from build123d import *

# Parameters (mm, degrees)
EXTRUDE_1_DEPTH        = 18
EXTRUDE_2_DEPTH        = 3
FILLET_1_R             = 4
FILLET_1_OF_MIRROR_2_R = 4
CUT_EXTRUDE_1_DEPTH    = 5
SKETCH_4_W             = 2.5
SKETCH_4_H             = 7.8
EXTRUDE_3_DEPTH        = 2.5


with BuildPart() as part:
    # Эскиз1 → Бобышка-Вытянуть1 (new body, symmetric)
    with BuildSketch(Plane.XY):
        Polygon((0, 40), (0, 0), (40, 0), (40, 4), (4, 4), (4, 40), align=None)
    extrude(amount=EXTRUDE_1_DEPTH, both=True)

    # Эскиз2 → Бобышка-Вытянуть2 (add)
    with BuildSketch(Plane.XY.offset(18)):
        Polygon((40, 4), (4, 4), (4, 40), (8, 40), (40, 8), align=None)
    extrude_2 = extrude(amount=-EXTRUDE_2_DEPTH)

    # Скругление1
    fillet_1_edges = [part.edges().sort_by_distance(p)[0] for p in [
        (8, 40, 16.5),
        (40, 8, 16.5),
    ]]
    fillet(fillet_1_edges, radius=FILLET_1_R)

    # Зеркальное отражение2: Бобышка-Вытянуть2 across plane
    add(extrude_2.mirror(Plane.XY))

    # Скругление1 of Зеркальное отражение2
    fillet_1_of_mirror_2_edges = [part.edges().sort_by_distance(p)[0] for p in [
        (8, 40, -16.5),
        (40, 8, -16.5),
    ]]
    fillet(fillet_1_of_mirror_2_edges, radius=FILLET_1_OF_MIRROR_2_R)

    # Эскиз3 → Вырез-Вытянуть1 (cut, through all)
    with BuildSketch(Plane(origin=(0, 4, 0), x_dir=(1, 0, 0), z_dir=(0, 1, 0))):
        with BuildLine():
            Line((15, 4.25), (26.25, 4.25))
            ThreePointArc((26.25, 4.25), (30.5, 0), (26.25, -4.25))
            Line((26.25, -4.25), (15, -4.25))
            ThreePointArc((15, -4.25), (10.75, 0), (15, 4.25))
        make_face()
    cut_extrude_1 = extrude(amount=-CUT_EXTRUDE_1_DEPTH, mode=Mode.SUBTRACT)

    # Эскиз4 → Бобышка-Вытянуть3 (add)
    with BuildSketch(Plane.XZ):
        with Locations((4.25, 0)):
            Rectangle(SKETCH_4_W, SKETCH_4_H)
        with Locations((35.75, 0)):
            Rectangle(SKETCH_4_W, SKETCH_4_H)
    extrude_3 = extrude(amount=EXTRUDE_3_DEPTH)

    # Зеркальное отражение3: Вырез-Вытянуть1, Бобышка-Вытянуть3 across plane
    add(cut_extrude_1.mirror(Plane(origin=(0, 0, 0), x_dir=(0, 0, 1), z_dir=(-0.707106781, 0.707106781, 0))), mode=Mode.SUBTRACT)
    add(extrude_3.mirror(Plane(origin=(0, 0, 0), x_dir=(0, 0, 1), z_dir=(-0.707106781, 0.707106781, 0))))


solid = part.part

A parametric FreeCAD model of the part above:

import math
import FreeCAD as App
import Part
import Sketcher
from FreeCAD import Vector


def edges_at(feature, points):
    """Names of the edges that pass closest to the given points."""
    edges = feature.Shape.Edges
    near = lambda p: min(range(len(edges)), key=lambda i: edges[i].distToShape(Part.Vertex(*p))[0])
    return sorted({f"Edge{near(p) + 1}" for p in points})


def add_polygon(sketch, points):
    """Adds a closed chain of lines whose ends are joined by coincident constraints."""
    first, n = sketch.GeometryCount, len(points)
    for a, b in zip(points, points[1:] + points[:1]):
        sketch.addGeometry(Part.LineSegment(App.Vector(*a, 0), App.Vector(*b, 0)), False)
    for i in range(n):
        sketch.addConstraint(Sketcher.Constraint("Coincident", first + i, 2, first + (i + 1) % n, 1))

doc = App.newDocument("Part")
body = doc.addObject("PartDesign::Body", "Body")

# Sketch on XY plane
sketch1 = body.newObject("Sketcher::SketchObject", "Sketch")
sketch1.AttachmentSupport = (doc.getObject("XY_Plane"), [""])
sketch1.MapMode = "FlatFace"
add_polygon(sketch1, [(0, 40), (0, 0), (40, 0), (40, 4), (4, 4), (4, 40)])  # lines 0-5
sketch1.addConstraint(Sketcher.Constraint("Vertical", 0))
sketch1.addConstraint(Sketcher.Constraint("Horizontal", 1))
sketch1.addConstraint(Sketcher.Constraint("Vertical", 2))
sketch1.addConstraint(Sketcher.Constraint("Horizontal", 3))
sketch1.addConstraint(Sketcher.Constraint("Vertical", 4))
sketch1.addConstraint(Sketcher.Constraint("Horizontal", 5))
sketch1.addConstraint(Sketcher.Constraint("Coincident", 0, 2, -1, 1))
sketch1.addConstraint(Sketcher.Constraint("Equal", 1, 0))
sketch1.addConstraint(Sketcher.Constraint("Equal", 5, 2))
sketch1.addConstraint(Sketcher.Constraint("DistanceX", 1, 1, 1, 2, 40.0))
sketch1.addConstraint(Sketcher.Constraint("DistanceX", 3, 2, 3, 1, 36.0))
pad1 = body.newObject("PartDesign::Pad", "Pad")
pad1.Profile = sketch1
pad1.Length = 36
pad1.Midplane = True

# Sketch on XY plane
sketch2 = body.newObject("Sketcher::SketchObject", "Sketch001")
sketch2.AttachmentSupport = (doc.getObject("XY_Plane"), [""])
sketch2.MapMode = "FlatFace"
sketch2.AttachmentOffset = App.Placement(Vector(0, 0, 18), App.Rotation())
add_polygon(sketch2, [(4, 4), (40, 4), (40, 8), (8, 40), (4, 40)])  # lines 0-4
sketch2.addConstraint(Sketcher.Constraint("Horizontal", 0))
sketch2.addConstraint(Sketcher.Constraint("Vertical", 1))
sketch2.addConstraint(Sketcher.Constraint("Horizontal", 3))
sketch2.addConstraint(Sketcher.Constraint("Vertical", 4))
sketch2.addConstraint(Sketcher.Constraint("Equal", 3, 1))
sketch2.addConstraint(Sketcher.Constraint("Equal", 0, 4))
sketch2.addConstraint(Sketcher.Constraint("DistanceX", 0, 1, 0, 2, 36.0))
sketch2.addConstraint(Sketcher.Constraint("DistanceX", 3, 2, 3, 1, 4.0))
sketch2.addConstraint(Sketcher.Constraint("DistanceX", -1, 1, 0, 2, 40.0))
sketch2.addConstraint(Sketcher.Constraint("DistanceY", -1, 1, 0, 2, 4.0))
pad2 = body.newObject("PartDesign::Pad", "Pad001")
pad2.Profile = sketch2
pad2.Length = 3
pad2.Reversed = True
doc.recompute()

fillet = body.newObject("PartDesign::Fillet", "Fillet")
fillet.Base = (pad2, edges_at(pad2, [(8, 40, 16.5), (40, 8, 16.5)]))
fillet.Radius = 4
doc.recompute()

mirrored = body.newObject("PartDesign::Mirrored", "Mirrored")
mirrored.Originals = [pad2]
mirrored.MirrorPlane = (doc.getObject("XY_Plane"), [""])
body.Tip = mirrored
doc.recompute()

fillet2 = body.newObject("PartDesign::Fillet", "Fillet001")
fillet2.Base = (mirrored, edges_at(mirrored, [(8, 40, -16.5), (40, 8, -16.5)]))
fillet2.Radius = 4

# Sketch on XZ plane
sketch3 = body.newObject("Sketcher::SketchObject", "Sketch002")
sketch3.AttachmentSupport = (doc.getObject("XZ_Plane"), [""])
sketch3.MapMode = "FlatFace"
sketch3.AttachmentOffset = App.Placement(Vector(0, 0, -4), App.Rotation())
sketch3.addGeometry(Part.LineSegment(Vector(26.2, -4.2, 0), Vector(15, -4.2, 0)), False)
sketch3.addGeometry(Part.ArcOfCircle(Part.Circle(Vector(15, 0, 0), Vector(0, 0, 1), 4.2), math.radians(90), math.radians(270)), False)
sketch3.addGeometry(Part.LineSegment(Vector(15, 4.2, 0), Vector(26.2, 4.2, 0)), False)
sketch3.addGeometry(Part.ArcOfCircle(Part.Circle(Vector(26.2, 0, 0), Vector(0, 0, 1), 4.2), math.radians(-90), math.radians(90)), False)
sketch3.addConstraint(Sketcher.Constraint("Tangent", 0, 2, 1, 2))
sketch3.addConstraint(Sketcher.Constraint("Tangent", 1, 1, 2, 1))
sketch3.addConstraint(Sketcher.Constraint("Tangent", 2, 2, 3, 2))
sketch3.addConstraint(Sketcher.Constraint("Tangent", 3, 1, 0, 1))
sketch3.addConstraint(Sketcher.Constraint("Horizontal", 0))
sketch3.addConstraint(Sketcher.Constraint("Horizontal", 2))
sketch3.addConstraint(Sketcher.Constraint("PointOnObject", 1, 3, -1))
sketch3.addConstraint(Sketcher.Constraint("Radius", 1, 4.25))
sketch3.addConstraint(Sketcher.Constraint("DistanceX", -1, 1, 1, 3, 15.0))
sketch3.addConstraint(Sketcher.Constraint("DistanceX", 0, 2, 0, 1, 11.25))
pocket1 = body.newObject("PartDesign::Pocket", "Pocket")
pocket1.Profile = sketch3
pocket1.Type = "ThroughAll"
pocket1.Reversed = True

# Sketch on XZ plane
sketch4 = body.newObject("Sketcher::SketchObject", "Sketch003")
sketch4.AttachmentSupport = (doc.getObject("XZ_Plane"), [""])
sketch4.MapMode = "FlatFace"
add_polygon(sketch4, [(3, 3.9), (3, -3.9), (5.5, -3.9), (5.5, 3.9)])  # lines 0-3
add_polygon(sketch4, [(34.5, 3.9), (34.5, -3.9), (37, -3.9), (37, 3.9)])  # lines 4-7
sketch4.addConstraint(Sketcher.Constraint("Vertical", 0))
sketch4.addConstraint(Sketcher.Constraint("Horizontal", 1))
sketch4.addConstraint(Sketcher.Constraint("Vertical", 2))
sketch4.addConstraint(Sketcher.Constraint("Horizontal", 3))
sketch4.addConstraint(Sketcher.Constraint("Vertical", 4))
sketch4.addConstraint(Sketcher.Constraint("Horizontal", 5))
sketch4.addConstraint(Sketcher.Constraint("Vertical", 6))
sketch4.addConstraint(Sketcher.Constraint("Horizontal", 7))
sketch4.addConstraint(Sketcher.Constraint("Horizontal", 1, 2, 4, 2))
sketch4.addConstraint(Sketcher.Constraint("Horizontal", 3, 2, 6, 2))
sketch4.addConstraint(Sketcher.Constraint("Equal", 3, 5))
sketch4.addConstraint(Sketcher.Constraint("DistanceX", 1, 1, 1, 2, 2.5))
sketch4.addConstraint(Sketcher.Constraint("DistanceY", 0, 2, 0, 1, 7.8))
sketch4.addConstraint(Sketcher.Constraint("DistanceX", -1, 1, 0, 2, 3.0))
sketch4.addConstraint(Sketcher.Constraint("DistanceX", -1, 1, 5, 2, 37.0))
sketch4.addConstraint(Sketcher.Constraint("DistanceY", 0, 2, -1, 1, 3.9))
pad3 = body.newObject("PartDesign::Pad", "Pad002")
pad3.Profile = sketch4
pad3.Length = 2.5
doc.recompute()

datumplane = body.newObject("PartDesign::Plane", "DatumPlane")
datumplane.Placement = App.Placement(Vector(0, 0, 0), App.Rotation(Vector(0.707106781, 0.707106781, 0), Vector(0, 0, -1), Vector(-0.707106781, 0.707106781, 0), "ZXY"))
mirrored2 = body.newObject("PartDesign::Mirrored", "Mirrored001")
mirrored2.Originals = [pocket1, pad3]
mirrored2.MirrorPlane = (datumplane, [""])
body.Tip = mirrored2

doc.recompute()
